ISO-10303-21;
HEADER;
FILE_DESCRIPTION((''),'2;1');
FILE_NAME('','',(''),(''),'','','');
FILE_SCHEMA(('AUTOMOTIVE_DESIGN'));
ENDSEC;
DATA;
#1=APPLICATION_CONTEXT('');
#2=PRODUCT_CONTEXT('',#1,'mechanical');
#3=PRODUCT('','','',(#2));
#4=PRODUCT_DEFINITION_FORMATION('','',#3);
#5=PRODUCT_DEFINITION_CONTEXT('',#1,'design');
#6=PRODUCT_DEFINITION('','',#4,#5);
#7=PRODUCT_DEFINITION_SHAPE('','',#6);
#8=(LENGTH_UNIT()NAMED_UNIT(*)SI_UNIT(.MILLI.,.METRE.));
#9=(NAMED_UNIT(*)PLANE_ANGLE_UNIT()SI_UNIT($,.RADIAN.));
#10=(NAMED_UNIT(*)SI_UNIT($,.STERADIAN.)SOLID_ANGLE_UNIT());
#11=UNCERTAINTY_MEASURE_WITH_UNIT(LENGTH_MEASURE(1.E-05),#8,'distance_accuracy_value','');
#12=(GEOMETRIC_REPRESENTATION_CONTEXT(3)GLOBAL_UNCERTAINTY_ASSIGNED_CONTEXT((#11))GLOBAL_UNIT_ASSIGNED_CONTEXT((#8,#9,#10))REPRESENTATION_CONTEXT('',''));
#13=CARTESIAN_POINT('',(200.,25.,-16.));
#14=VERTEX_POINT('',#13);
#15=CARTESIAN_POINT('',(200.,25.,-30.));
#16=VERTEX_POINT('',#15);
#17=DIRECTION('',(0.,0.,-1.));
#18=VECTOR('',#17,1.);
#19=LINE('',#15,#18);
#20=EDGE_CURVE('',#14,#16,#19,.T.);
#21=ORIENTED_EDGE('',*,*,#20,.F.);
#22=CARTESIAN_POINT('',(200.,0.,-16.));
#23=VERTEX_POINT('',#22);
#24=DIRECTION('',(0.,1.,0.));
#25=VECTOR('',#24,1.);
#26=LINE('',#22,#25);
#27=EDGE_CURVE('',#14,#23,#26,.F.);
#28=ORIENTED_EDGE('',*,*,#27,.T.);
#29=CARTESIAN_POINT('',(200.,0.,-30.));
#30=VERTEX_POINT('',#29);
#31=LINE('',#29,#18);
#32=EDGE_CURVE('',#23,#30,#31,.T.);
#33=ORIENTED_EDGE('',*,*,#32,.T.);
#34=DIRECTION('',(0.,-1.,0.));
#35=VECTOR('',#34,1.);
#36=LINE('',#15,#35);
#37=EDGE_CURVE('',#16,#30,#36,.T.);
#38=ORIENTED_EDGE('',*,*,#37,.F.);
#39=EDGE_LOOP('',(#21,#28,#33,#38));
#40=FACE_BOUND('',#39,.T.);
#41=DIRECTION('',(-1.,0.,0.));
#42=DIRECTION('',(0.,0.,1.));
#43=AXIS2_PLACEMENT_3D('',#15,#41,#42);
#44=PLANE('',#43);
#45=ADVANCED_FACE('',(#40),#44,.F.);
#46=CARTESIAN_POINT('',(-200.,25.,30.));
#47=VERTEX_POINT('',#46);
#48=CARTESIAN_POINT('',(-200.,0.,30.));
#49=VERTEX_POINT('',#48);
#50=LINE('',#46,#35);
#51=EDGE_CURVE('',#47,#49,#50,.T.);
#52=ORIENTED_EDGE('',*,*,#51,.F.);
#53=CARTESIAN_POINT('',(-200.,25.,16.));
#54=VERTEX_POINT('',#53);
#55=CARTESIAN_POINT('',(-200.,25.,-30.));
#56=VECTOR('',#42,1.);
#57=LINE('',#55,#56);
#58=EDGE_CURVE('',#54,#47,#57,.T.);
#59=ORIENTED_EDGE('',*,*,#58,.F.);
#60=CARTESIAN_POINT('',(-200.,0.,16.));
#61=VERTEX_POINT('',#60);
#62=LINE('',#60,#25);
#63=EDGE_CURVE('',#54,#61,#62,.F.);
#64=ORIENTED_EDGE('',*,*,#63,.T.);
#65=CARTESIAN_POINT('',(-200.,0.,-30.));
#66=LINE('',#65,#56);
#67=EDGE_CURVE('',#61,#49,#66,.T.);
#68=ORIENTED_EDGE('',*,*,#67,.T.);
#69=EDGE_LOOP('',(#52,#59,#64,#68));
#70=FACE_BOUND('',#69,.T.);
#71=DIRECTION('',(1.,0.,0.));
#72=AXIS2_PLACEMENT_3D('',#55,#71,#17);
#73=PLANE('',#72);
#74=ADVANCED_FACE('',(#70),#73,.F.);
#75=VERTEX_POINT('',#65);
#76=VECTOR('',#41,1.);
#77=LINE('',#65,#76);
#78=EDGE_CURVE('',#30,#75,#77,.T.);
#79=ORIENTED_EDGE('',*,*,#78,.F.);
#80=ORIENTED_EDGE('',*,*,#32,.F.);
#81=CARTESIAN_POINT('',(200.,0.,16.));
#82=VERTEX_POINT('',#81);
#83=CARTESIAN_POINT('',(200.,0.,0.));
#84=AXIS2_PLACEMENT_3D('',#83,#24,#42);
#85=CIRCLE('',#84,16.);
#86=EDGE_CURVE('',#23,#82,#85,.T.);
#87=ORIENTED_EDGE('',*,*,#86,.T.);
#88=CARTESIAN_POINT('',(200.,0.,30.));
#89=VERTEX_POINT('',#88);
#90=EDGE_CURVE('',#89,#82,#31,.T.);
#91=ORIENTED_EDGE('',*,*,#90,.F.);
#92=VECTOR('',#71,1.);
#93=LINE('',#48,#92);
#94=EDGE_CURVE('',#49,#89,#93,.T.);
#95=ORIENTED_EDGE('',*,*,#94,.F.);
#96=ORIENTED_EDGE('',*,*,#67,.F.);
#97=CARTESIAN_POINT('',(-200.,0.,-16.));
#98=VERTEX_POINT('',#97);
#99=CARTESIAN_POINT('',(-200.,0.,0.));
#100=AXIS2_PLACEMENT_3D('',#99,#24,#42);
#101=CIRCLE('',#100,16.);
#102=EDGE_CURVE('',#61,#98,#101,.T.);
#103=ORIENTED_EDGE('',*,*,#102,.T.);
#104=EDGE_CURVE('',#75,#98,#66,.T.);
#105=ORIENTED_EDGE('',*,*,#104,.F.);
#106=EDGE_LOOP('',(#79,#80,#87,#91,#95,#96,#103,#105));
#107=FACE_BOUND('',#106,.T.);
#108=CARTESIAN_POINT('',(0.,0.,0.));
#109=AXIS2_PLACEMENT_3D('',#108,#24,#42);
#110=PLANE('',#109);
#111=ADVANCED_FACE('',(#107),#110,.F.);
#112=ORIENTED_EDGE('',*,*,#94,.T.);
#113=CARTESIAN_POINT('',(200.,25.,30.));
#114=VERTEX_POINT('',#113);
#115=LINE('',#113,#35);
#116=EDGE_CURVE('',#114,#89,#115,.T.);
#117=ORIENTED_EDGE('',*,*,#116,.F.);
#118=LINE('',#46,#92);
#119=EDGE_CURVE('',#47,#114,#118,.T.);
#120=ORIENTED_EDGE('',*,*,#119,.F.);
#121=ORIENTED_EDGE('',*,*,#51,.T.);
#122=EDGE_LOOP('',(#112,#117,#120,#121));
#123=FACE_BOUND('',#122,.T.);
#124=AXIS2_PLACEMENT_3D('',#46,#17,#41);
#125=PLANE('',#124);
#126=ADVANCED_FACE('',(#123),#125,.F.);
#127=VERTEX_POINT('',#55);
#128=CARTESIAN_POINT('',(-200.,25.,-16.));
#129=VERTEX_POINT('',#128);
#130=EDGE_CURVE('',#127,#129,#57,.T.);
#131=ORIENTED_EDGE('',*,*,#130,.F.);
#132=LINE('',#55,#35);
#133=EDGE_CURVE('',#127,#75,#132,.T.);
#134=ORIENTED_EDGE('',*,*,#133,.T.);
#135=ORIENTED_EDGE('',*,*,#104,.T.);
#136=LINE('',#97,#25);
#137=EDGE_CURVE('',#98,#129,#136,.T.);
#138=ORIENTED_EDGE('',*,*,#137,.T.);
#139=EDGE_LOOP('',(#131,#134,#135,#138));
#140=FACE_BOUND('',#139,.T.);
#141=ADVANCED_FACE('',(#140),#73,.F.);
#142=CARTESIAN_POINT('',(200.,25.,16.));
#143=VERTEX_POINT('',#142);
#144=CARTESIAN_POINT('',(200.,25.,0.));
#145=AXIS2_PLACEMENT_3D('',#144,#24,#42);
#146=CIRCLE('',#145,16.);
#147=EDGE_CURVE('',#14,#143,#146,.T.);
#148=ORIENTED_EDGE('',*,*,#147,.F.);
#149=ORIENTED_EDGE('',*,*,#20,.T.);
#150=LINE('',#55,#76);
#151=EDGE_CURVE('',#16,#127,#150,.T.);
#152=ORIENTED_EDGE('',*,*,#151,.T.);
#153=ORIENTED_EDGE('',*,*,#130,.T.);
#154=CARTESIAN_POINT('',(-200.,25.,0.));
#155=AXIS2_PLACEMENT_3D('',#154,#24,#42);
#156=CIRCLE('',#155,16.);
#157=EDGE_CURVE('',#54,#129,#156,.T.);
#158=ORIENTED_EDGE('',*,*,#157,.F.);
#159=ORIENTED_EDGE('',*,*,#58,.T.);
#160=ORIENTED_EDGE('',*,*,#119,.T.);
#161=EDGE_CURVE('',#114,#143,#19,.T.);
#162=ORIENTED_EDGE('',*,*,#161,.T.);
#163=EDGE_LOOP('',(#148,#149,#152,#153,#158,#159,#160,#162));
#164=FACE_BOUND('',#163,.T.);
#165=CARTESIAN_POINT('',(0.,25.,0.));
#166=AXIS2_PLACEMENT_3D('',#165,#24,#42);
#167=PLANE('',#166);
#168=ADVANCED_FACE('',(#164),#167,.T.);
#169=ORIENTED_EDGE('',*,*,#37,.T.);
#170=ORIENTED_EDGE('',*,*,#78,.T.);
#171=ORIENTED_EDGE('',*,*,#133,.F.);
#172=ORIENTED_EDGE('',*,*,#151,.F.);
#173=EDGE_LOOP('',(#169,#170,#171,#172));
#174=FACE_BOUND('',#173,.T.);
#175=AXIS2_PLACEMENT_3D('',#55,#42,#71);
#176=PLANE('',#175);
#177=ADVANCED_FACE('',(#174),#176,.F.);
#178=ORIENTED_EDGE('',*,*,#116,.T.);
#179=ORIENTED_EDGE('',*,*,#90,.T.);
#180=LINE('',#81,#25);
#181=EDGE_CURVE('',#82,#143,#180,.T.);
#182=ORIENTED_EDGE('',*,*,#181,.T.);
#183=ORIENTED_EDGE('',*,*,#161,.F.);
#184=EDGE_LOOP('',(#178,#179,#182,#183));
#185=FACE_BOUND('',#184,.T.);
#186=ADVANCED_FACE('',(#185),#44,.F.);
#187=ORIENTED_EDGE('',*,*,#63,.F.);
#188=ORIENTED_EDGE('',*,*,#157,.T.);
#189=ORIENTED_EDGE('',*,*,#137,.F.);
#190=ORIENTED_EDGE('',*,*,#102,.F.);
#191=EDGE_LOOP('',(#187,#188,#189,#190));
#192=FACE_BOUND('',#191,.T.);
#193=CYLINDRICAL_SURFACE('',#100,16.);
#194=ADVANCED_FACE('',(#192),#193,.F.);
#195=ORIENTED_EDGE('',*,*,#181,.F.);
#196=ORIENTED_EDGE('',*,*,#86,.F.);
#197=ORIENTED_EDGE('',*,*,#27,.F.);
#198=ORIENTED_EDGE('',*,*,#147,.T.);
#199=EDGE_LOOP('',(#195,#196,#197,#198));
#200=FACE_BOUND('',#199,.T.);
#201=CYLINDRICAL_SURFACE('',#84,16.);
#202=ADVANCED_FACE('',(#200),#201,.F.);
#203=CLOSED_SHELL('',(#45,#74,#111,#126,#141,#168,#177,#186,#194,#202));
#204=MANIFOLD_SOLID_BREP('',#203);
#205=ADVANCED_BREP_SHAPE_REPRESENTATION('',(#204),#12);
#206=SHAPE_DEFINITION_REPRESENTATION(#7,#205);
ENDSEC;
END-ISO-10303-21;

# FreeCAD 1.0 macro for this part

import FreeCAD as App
import Part
import Sketcher
from FreeCAD import Vector
Q = App.Units.Quantity


def add_polygon(sketch, points):
    """Adds a closed chain of lines whose ends are joined by coincident constraints."""
    first, n = sketch.GeometryCount, len(points)
    for a, b in zip(points, points[1:] + points[:1]):
        sketch.addGeometry(Part.LineSegment(App.Vector(*a, 0), App.Vector(*b, 0)), False)
    for i in range(n):
        sketch.addConstraint(Sketcher.Constraint("Coincident", first + i, 2, first + (i + 1) % n, 1))

doc = App.newDocument("Part")
params = doc.addObject("Spreadsheet::Sheet", "Params")
for row, (alias, value) in enumerate([
    ("sketch1_width", "400 mm"),
    ("sketch1_height", "60 mm"),
    ("pad1_length", "25 mm"),
    ("sketch2_diameter", "32 mm"),
], start=1):
    params.set(f"A{row}", alias)
    params.set(f"B{row}", "=" + value)
    params.setAlias(f"B{row}", alias)

body = doc.addObject("PartDesign::Body", "Body")

sketch1 = body.newObject("Sketcher::SketchObject", "Sketch")
sketch1.AttachmentSupport = (doc.getObject("XZ_Plane"), [""])
sketch1.MapMode = "FlatFace"
add_polygon(sketch1, [(-200, -30), (-200, 30), (200, 30), (200, -30)])
sketch1.addConstraint(Sketcher.Constraint("Vertical", 0))
sketch1.addConstraint(Sketcher.Constraint("Horizontal", 1))
sketch1.addConstraint(Sketcher.Constraint("Vertical", 2))
sketch1.addConstraint(Sketcher.Constraint("Horizontal", 3))
sketch1.addConstraint(Sketcher.Constraint("Symmetric", 0, 2, 2, 2, -1, 1))
sketch1.addConstraint(Sketcher.Constraint("DistanceX", 1, 1, 1, 2, Q("400 mm")))
sketch1.addConstraint(Sketcher.Constraint("DistanceY", 0, 1, 0, 2, Q("60 mm")))
sketch1.setExpression("Constraints[9]", "Params.sketch1_width")
sketch1.setExpression("Constraints[10]", "Params.sketch1_height")
pad1 = body.newObject("PartDesign::Pad", "Pad")
pad1.Profile = sketch1
pad1.setExpression("Length", "Params.pad1_length")
pad1.Reversed = True

sketch2 = body.newObject("Sketcher::SketchObject", "Sketch001")
sketch2.AttachmentSupport = (doc.getObject("XZ_Plane"), [""])
sketch2.MapMode = "FlatFace"
sketch2.AttachmentOffset = App.Placement(Vector(0, 0, -25), App.Rotation())
sketch2.addGeometry(Part.Circle(Vector(-200, 0, 0), Vector(0, 0, 1), 16), False)
sketch2.addGeometry(Part.Circle(Vector(200, 0, 0), Vector(0, 0, 1), 16), False)
sketch2.addConstraint(Sketcher.Constraint("Equal", 0, 1))
sketch2.addConstraint(Sketcher.Constraint("Symmetric", 0, 3, 1, 3, -1, 1))
sketch2.addConstraint(Sketcher.Constraint("PointOnObject", 0, 3, -1))
sketch2.addConstraint(Sketcher.Constraint("Diameter", 0, Q("32 mm")))
sketch2.addConstraint(Sketcher.Constraint("DistanceX", 0, 3, -1, 1, Q("200 mm")))
sketch2.setExpression("Constraints[3]", "Params.sketch2_diameter")
pocket1 = body.newObject("PartDesign::Pocket", "Pocket")
pocket1.Profile = sketch2
pocket1.Type = "ThroughAll"
pocket1.Reversed = True

doc.recompute()
